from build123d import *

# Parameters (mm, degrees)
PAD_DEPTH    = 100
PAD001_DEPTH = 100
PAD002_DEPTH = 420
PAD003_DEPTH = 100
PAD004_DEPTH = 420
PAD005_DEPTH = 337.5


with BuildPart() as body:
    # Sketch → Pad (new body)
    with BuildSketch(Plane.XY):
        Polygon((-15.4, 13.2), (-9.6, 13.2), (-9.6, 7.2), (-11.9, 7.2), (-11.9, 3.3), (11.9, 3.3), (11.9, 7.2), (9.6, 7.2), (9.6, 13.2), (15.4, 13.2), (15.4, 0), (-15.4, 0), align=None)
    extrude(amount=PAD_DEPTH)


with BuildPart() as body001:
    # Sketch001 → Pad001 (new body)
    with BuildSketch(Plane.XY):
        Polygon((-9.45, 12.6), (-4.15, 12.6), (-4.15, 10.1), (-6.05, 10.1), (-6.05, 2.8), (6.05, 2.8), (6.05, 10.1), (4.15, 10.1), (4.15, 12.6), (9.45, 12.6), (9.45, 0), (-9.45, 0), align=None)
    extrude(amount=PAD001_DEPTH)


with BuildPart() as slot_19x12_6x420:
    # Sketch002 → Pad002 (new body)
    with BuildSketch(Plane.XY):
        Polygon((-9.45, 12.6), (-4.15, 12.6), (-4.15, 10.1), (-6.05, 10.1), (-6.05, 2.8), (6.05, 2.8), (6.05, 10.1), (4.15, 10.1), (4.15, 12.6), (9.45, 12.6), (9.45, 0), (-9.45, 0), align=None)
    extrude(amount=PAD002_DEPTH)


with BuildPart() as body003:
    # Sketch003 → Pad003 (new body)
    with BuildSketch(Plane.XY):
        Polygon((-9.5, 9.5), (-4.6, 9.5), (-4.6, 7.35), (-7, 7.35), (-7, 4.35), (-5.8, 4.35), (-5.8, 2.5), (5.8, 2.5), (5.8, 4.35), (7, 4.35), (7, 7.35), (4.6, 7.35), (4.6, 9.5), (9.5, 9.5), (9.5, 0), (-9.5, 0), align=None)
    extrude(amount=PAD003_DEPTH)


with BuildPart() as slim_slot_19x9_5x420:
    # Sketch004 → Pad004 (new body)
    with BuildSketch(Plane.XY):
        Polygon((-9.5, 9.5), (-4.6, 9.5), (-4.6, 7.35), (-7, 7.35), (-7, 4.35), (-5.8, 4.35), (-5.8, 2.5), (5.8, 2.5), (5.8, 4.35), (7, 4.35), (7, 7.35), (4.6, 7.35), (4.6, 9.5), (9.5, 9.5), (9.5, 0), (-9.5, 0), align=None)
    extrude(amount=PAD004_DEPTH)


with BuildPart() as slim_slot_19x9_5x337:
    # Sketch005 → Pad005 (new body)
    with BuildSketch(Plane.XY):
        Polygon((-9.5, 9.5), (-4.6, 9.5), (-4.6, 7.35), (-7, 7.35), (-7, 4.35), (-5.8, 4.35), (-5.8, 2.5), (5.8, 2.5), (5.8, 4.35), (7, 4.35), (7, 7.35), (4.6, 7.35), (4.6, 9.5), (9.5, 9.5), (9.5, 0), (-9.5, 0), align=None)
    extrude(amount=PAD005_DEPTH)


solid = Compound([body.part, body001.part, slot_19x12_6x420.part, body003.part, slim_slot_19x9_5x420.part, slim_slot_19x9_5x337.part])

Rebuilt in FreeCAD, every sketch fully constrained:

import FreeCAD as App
import Part
import Sketcher


def add_polygon(sketch, points):
    """Adds a closed chain of lines whose ends are joined by coincident constraints."""
    first, n = sketch.GeometryCount, len(points)
    for a, b in zip(points, points[1:] + points[:1]):
        sketch.addGeometry(Part.LineSegment(App.Vector(*a, 0), App.Vector(*b, 0)), False)
    for i in range(n):
        sketch.addConstraint(Sketcher.Constraint("Coincident", first + i, 2, first + (i + 1) % n, 1))

doc = App.newDocument("Part")
body = doc.addObject("PartDesign::Body", "Body")

# Sketch on XY plane
sketch1 = body.newObject("Sketcher::SketchObject", "Sketch")
sketch1.AttachmentSupport = (doc.getObject("XY_Plane"), [""])
sketch1.MapMode = "FlatFace"
add_polygon(sketch1, [(-9.6, 13.2), (-15.4, 13.2), (-15.4, 0), (15.4, 0), (15.4, 13.2), (9.6, 13.2), (9.6, 7.2), (11.9, 7.2), (11.9, 3.3), (-11.9, 3.3), (-11.9, 7.2), (-9.6, 7.2)])  # lines 0-11
sketch1.addConstraint(Sketcher.Constraint("Horizontal", 0))
sketch1.addConstraint(Sketcher.Constraint("Vertical", 1))
sketch1.addConstraint(Sketcher.Constraint("Horizontal", 2))
sketch1.addConstraint(Sketcher.Constraint("Vertical", 3))
sketch1.addConstraint(Sketcher.Constraint("Horizontal", 4))
sketch1.addConstraint(Sketcher.Constraint("Vertical", 5))
sketch1.addConstraint(Sketcher.Constraint("Horizontal", 6))
sketch1.addConstraint(Sketcher.Constraint("Vertical", 7))
sketch1.addConstraint(Sketcher.Constraint("Horizontal", 8))
sketch1.addConstraint(Sketcher.Constraint("Vertical", 9))
sketch1.addConstraint(Sketcher.Constraint("Horizontal", 10))
sketch1.addConstraint(Sketcher.Constraint("Vertical", 11))
sketch1.addConstraint(Sketcher.Constraint("Symmetric", 1, 2, 2, 2, -1, 1))
sketch1.addConstraint(Sketcher.Constraint("Symmetric", 6, 2, 9, 2, -2))
sketch1.addConstraint(Sketcher.Constraint("Symmetric", 4, 2, 11, 2, -2))
sketch1.addConstraint(Sketcher.Constraint("DistanceY", 5, 2, 5, 1, 6.0))
sketch1.addConstraint(Sketcher.Constraint("DistanceX", 0, 2, 0, 1, 5.8))
sketch1.addConstraint(Sketcher.Constraint("DistanceX", 2, 1, 2, 2, 30.8))
sketch1.addConstraint(Sketcher.Constraint("DistanceX", 6, 1, 6, 2, 2.3))
sketch1.addConstraint(Sketcher.Constraint("DistanceY", 1, 2, 1, 1, 13.2))
sketch1.addConstraint(Sketcher.Constraint("DistanceY", 7, 2, 7, 1, 3.9))
pad1 = body.newObject("PartDesign::Pad", "Pad")
pad1.Profile = sketch1
pad1.Length = 100
body2 = doc.addObject("PartDesign::Body", "Body001")

# Sketch on XY plane
sketch2 = body2.newObject("Sketcher::SketchObject", "Sketch001")
sketch2.AttachmentSupport = (doc.getObject("XY_Plane001"), [""])
sketch2.MapMode = "FlatFace"
add_polygon(sketch2, [(-4.15, 12.6), (-9.45, 12.6), (-9.45, 0), (9.45, 0), (9.45, 12.6), (4.15, 12.6), (4.15, 10.1), (6.05, 10.1), (6.05, 2.8), (-6.05, 2.8), (-6.05, 10.1), (-4.15, 10.1)])  # lines 0-11
sketch2.addConstraint(Sketcher.Constraint("Horizontal", 0))
sketch2.addConstraint(Sketcher.Constraint("Vertical", 1))
sketch2.addConstraint(Sketcher.Constraint("Horizontal", 2))
sketch2.addConstraint(Sketcher.Constraint("Vertical", 3))
sketch2.addConstraint(Sketcher.Constraint("Horizontal", 4))
sketch2.addConstraint(Sketcher.Constraint("Vertical", 5))
sketch2.addConstraint(Sketcher.Constraint("Horizontal", 6))
sketch2.addConstraint(Sketcher.Constraint("Vertical", 7))
sketch2.addConstraint(Sketcher.Constraint("Horizontal", 8))
sketch2.addConstraint(Sketcher.Constraint("Vertical", 9))
sketch2.addConstraint(Sketcher.Constraint("Horizontal", 10))
sketch2.addConstraint(Sketcher.Constraint("Vertical", 11))
sketch2.addConstraint(Sketcher.Constraint("Symmetric", 1, 2, 2, 2, -1, 1))
sketch2.addConstraint(Sketcher.Constraint("Symmetric", 6, 2, 9, 2, -2))
sketch2.addConstraint(Sketcher.Constraint("Symmetric", 4, 2, 11, 2, -2))
sketch2.addConstraint(Sketcher.Constraint("DistanceX", 0, 2, 0, 1, 5.3))
sketch2.addConstraint(Sketcher.Constraint("DistanceX", 2, 1, 2, 2, 18.9))
sketch2.addConstraint(Sketcher.Constraint("DistanceX", 6, 1, 6, 2, 1.9))
sketch2.addConstraint(Sketcher.Constraint("DistanceY", 1, 2, 1, 1, 12.6))
sketch2.addConstraint(Sketcher.Constraint("DistanceY", 5, 2, 5, 1, 2.5))
sketch2.addConstraint(Sketcher.Constraint("DistanceY", 7, 2, 7, 1, 7.3))
pad2 = body2.newObject("PartDesign::Pad", "Pad001")
pad2.Profile = sketch2
pad2.Length = 100
body3 = doc.addObject("PartDesign::Body", "Body002")

# Sketch on XY plane
sketch3 = body3.newObject("Sketcher::SketchObject", "Sketch002")
sketch3.AttachmentSupport = (doc.getObject("XY_Plane002"), [""])
sketch3.MapMode = "FlatFace"
add_polygon(sketch3, [(-4.15, 12.6), (-9.45, 12.6), (-9.45, 0), (9.45, 0), (9.45, 12.6), (4.15, 12.6), (4.15, 10.1), (6.05, 10.1), (6.05, 2.8), (-6.05, 2.8), (-6.05, 10.1), (-4.15, 10.1)])  # lines 0-11
sketch3.addConstraint(Sketcher.Constraint("Horizontal", 0))
sketch3.addConstraint(Sketcher.Constraint("Vertical", 1))
sketch3.addConstraint(Sketcher.Constraint("Horizontal", 2))
sketch3.addConstraint(Sketcher.Constraint("Vertical", 3))
sketch3.addConstraint(Sketcher.Constraint("Horizontal", 4))
sketch3.addConstraint(Sketcher.Constraint("Vertical", 5))
sketch3.addConstraint(Sketcher.Constraint("Horizontal", 6))
sketch3.addConstraint(Sketcher.Constraint("Vertical", 7))
sketch3.addConstraint(Sketcher.Constraint("Horizontal", 8))
sketch3.addConstraint(Sketcher.Constraint("Vertical", 9))
sketch3.addConstraint(Sketcher.Constraint("Horizontal", 10))
sketch3.addConstraint(Sketcher.Constraint("Vertical", 11))
sketch3.addConstraint(Sketcher.Constraint("Symmetric", 1, 2, 2, 2, -1, 1))
sketch3.addConstraint(Sketcher.Constraint("Symmetric", 6, 2, 9, 2, -2))
sketch3.addConstraint(Sketcher.Constraint("Symmetric", 4, 2, 11, 2, -2))
sketch3.addConstraint(Sketcher.Constraint("DistanceX", 0, 2, 0, 1, 5.3))
sketch3.addConstraint(Sketcher.Constraint("DistanceX", 2, 1, 2, 2, 18.9))
sketch3.addConstraint(Sketcher.Constraint("DistanceX", 6, 1, 6, 2, 1.9))
sketch3.addConstraint(Sketcher.Constraint("DistanceY", 1, 2, 1, 1, 12.6))
sketch3.addConstraint(Sketcher.Constraint("DistanceY", 5, 2, 5, 1, 2.5))
sketch3.addConstraint(Sketcher.Constraint("DistanceY", 7, 2, 7, 1, 7.3))
pad3 = body3.newObject("PartDesign::Pad", "Pad002")
pad3.Profile = sketch3
pad3.Length = 420
body4 = doc.addObject("PartDesign::Body", "Body003")

# Sketch on XY plane
sketch4 = body4.newObject("Sketcher::SketchObject", "Sketch003")
sketch4.AttachmentSupport = (doc.getObject("XY_Plane003"), [""])
sketch4.MapMode = "FlatFace"
add_polygon(sketch4, [(-4.6, 9.5), (-9.5, 9.5), (-9.5, 0), (9.5, 0), (9.5, 9.5), (4.6, 9.5), (4.6, 7.35), (7, 7.35), (7, 4.35), (5.8, 4.35), (5.8, 2.5), (-5.8, 2.5), (-5.8, 4.35), (-7, 4.35), (-7, 7.35), (-4.6, 7.35)])  # lines 0-15
sketch4.addConstraint(Sketcher.Constraint("Horizontal", 0))
sketch4.addConstraint(Sketcher.Constraint("Vertical", 1))
sketch4.addConstraint(Sketcher.Constraint("Horizontal", 2))
sketch4.addConstraint(Sketcher.Constraint("Vertical", 3))
sketch4.addConstraint(Sketcher.Constraint("Horizontal", 4))
sketch4.addConstraint(Sketcher.Constraint("Vertical", 5))
sketch4.addConstraint(Sketcher.Constraint("Horizontal", 6))
sketch4.addConstraint(Sketcher.Constraint("Vertical", 7))
sketch4.addConstraint(Sketcher.Constraint("Horizontal", 8))
sketch4.addConstraint(Sketcher.Constraint("Vertical", 9))
sketch4.addConstraint(Sketcher.Constraint("Horizontal", 10))
sketch4.addConstraint(Sketcher.Constraint("Vertical", 11))
sketch4.addConstraint(Sketcher.Constraint("Horizontal", 12))
sketch4.addConstraint(Sketcher.Constraint("Vertical", 13))
sketch4.addConstraint(Sketcher.Constraint("Horizontal", 14))
sketch4.addConstraint(Sketcher.Constraint("Vertical", 15))
sketch4.addConstraint(Sketcher.Constraint("Symmetric", 1, 2, 2, 2, -1, 1))
sketch4.addConstraint(Sketcher.Constraint("Symmetric", 8, 2, 11, 2, -2))
sketch4.addConstraint(Sketcher.Constraint("Symmetric", 6, 2, 13, 2, -2))
sketch4.addConstraint(Sketcher.Constraint("Symmetric", 4, 2, 15, 2, -2))
sketch4.addConstraint(Sketcher.Constraint("DistanceX", 2, 1, 2, 2, 19.0))
sketch4.addConstraint(Sketcher.Constraint("DistanceY", 7, 2, 7, 1, 3.0))
sketch4.addConstraint(Sketcher.Constraint("DistanceX", 0, 2, 0, 1, 4.9))
sketch4.addConstraint(Sketcher.Constraint("DistanceX", 6, 1, 6, 2, 2.4))
sketch4.addConstraint(Sketcher.Constraint("DistanceX", 8, 2, 8, 1, 1.2))
sketch4.addConstraint(Sketcher.Constraint("DistanceY", 1, 2, 1, 1, 9.5))
sketch4.addConstraint(Sketcher.Constraint("DistanceY", 10, 2, 0, 2, 7.0))
sketch4.addConstraint(Sketcher.Constraint("DistanceY", 5, 2, 5, 1, 2.15))
pad4 = body4.newObject("PartDesign::Pad", "Pad003")
pad4.Profile = sketch4
pad4.Length = 100
body5 = doc.addObject("PartDesign::Body", "Body004")

# Sketch on XY plane
sketch5 = body5.newObject("Sketcher::SketchObject", "Sketch004")
sketch5.AttachmentSupport = (doc.getObject("XY_Plane004"), [""])
sketch5.MapMode = "FlatFace"
add_polygon(sketch5, [(-4.6, 9.5), (-9.5, 9.5), (-9.5, 0), (9.5, 0), (9.5, 9.5), (4.6, 9.5), (4.6, 7.35), (7, 7.35), (7, 4.35), (5.8, 4.35), (5.8, 2.5), (-5.8, 2.5), (-5.8, 4.35), (-7, 4.35), (-7, 7.35), (-4.6, 7.35)])  # lines 0-15
sketch5.addConstraint(Sketcher.Constraint("Horizontal", 0))
sketch5.addConstraint(Sketcher.Constraint("Vertical", 1))
sketch5.addConstraint(Sketcher.Constraint("Horizontal", 2))
sketch5.addConstraint(Sketcher.Constraint("Vertical", 3))
sketch5.addConstraint(Sketcher.Constraint("Horizontal", 4))
sketch5.addConstraint(Sketcher.Constraint("Vertical", 5))
sketch5.addConstraint(Sketcher.Constraint("Horizontal", 6))
sketch5.addConstraint(Sketcher.Constraint("Vertical", 7))
sketch5.addConstraint(Sketcher.Constraint("Horizontal", 8))
sketch5.addConstraint(Sketcher.Constraint("Vertical", 9))
sketch5.addConstraint(Sketcher.Constraint("Horizontal", 10))
sketch5.addConstraint(Sketcher.Constraint("Vertical", 11))
sketch5.addConstraint(Sketcher.Constraint("Horizontal", 12))
sketch5.addConstraint(Sketcher.Constraint("Vertical", 13))
sketch5.addConstraint(Sketcher.Constraint("Horizontal", 14))
sketch5.addConstraint(Sketcher.Constraint("Vertical", 15))
sketch5.addConstraint(Sketcher.Constraint("Symmetric", 1, 2, 2, 2, -1, 1))
sketch5.addConstraint(Sketcher.Constraint("Symmetric", 8, 2, 11, 2, -2))
sketch5.addConstraint(Sketcher.Constraint("Symmetric", 6, 2, 13, 2, -2))
sketch5.addConstraint(Sketcher.Constraint("Symmetric", 4, 2, 15, 2, -2))
sketch5.addConstraint(Sketcher.Constraint("DistanceX", 2, 1, 2, 2, 19.0))
sketch5.addConstraint(Sketcher.Constraint("DistanceY", 7, 2, 7, 1, 3.0))
sketch5.addConstraint(Sketcher.Constraint("DistanceX", 0, 2, 0, 1, 4.9))
sketch5.addConstraint(Sketcher.Constraint("DistanceX", 6, 1, 6, 2, 2.4))
sketch5.addConstraint(Sketcher.Constraint("DistanceX", 8, 2, 8, 1, 1.2))
sketch5.addConstraint(Sketcher.Constraint("DistanceY", 1, 2, 1, 1, 9.5))
sketch5.addConstraint(Sketcher.Constraint("DistanceY", 10, 2, 0, 2, 7.0))
sketch5.addConstraint(Sketcher.Constraint("DistanceY", 5, 2, 5, 1, 2.15))
pad5 = body5.newObject("PartDesign::Pad", "Pad004")
pad5.Profile = sketch5
pad5.Length = 420
body6 = doc.addObject("PartDesign::Body", "Body005")

# Sketch on XY plane
sketch6 = body6.newObject("Sketcher::SketchObject", "Sketch005")
sketch6.AttachmentSupport = (doc.getObject("XY_Plane005"), [""])
sketch6.MapMode = "FlatFace"
add_polygon(sketch6, [(-4.6, 9.5), (-9.5, 9.5), (-9.5, 0), (9.5, 0), (9.5, 9.5), (4.6, 9.5), (4.6, 7.35), (7, 7.35), (7, 4.35), (5.8, 4.35), (5.8, 2.5), (-5.8, 2.5), (-5.8, 4.35), (-7, 4.35), (-7, 7.35), (-4.6, 7.35)])  # lines 0-15
sketch6.addConstraint(Sketcher.Constraint("Horizontal", 0))
sketch6.addConstraint(Sketcher.Constraint("Vertical", 1))
sketch6.addConstraint(Sketcher.Constraint("Horizontal", 2))
sketch6.addConstraint(Sketcher.Constraint("Vertical", 3))
sketch6.addConstraint(Sketcher.Constraint("Horizontal", 4))
sketch6.addConstraint(Sketcher.Constraint("Vertical", 5))
sketch6.addConstraint(Sketcher.Constraint("Horizontal", 6))
sketch6.addConstraint(Sketcher.Constraint("Vertical", 7))
sketch6.addConstraint(Sketcher.Constraint("Horizontal", 8))
sketch6.addConstraint(Sketcher.Constraint("Vertical", 9))
sketch6.addConstraint(Sketcher.Constraint("Horizontal", 10))
sketch6.addConstraint(Sketcher.Constraint("Vertical", 11))
sketch6.addConstraint(Sketcher.Constraint("Horizontal", 12))
sketch6.addConstraint(Sketcher.Constraint("Vertical", 13))
sketch6.addConstraint(Sketcher.Constraint("Horizontal", 14))
sketch6.addConstraint(Sketcher.Constraint("Vertical", 15))
sketch6.addConstraint(Sketcher.Constraint("Symmetric", 1, 2, 2, 2, -1, 1))
sketch6.addConstraint(Sketcher.Constraint("Symmetric", 8, 2, 11, 2, -2))
sketch6.addConstraint(Sketcher.Constraint("Symmetric", 6, 2, 13, 2, -2))
sketch6.addConstraint(Sketcher.Constraint("Symmetric", 4, 2, 15, 2, -2))
sketch6.addConstraint(Sketcher.Constraint("DistanceX", 2, 1, 2, 2, 19.0))
sketch6.addConstraint(Sketcher.Constraint("DistanceY", 7, 2, 7, 1, 3.0))
sketch6.addConstraint(Sketcher.Constraint("DistanceX", 0, 2, 0, 1, 4.9))
sketch6.addConstraint(Sketcher.Constraint("DistanceX", 6, 1, 6, 2, 2.4))
sketch6.addConstraint(Sketcher.Constraint("DistanceX", 8, 2, 8, 1, 1.2))
sketch6.addConstraint(Sketcher.Constraint("DistanceY", 1, 2, 1, 1, 9.5))
sketch6.addConstraint(Sketcher.Constraint("DistanceY", 10, 2, 0, 2, 7.0))
sketch6.addConstraint(Sketcher.Constraint("DistanceY", 5, 2, 5, 1, 2.15))
pad6 = body6.newObject("PartDesign::Pad", "Pad005")
pad6.Profile = sketch6
pad6.Length = 337.5

doc.recompute()
